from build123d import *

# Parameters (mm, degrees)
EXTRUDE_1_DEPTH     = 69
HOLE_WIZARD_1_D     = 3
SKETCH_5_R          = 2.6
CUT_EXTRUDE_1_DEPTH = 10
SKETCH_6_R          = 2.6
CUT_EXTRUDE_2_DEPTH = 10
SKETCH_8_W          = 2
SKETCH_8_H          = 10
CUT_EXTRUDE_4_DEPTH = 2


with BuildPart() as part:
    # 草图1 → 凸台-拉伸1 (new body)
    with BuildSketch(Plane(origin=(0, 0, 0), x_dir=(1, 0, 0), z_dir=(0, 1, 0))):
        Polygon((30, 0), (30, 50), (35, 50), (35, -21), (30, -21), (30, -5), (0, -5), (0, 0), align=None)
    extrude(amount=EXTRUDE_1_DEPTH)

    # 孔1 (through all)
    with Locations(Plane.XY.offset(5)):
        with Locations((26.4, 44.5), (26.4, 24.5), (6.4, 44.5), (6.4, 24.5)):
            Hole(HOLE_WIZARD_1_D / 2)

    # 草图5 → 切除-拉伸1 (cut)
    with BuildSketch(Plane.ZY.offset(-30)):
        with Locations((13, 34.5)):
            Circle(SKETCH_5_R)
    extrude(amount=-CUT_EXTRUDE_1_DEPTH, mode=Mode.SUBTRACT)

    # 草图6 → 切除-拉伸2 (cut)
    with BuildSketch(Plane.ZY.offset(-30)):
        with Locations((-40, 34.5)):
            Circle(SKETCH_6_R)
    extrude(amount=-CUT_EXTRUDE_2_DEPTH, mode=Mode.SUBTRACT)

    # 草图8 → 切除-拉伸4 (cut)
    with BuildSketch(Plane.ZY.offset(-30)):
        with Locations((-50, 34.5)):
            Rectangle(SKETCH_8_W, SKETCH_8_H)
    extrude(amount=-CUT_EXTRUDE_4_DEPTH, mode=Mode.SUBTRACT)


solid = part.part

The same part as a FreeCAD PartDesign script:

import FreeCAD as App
import Part
import Sketcher


def add_polygon(sketch, points):
    """Adds a closed chain of lines whose ends are joined by coincident constraints."""
    first, n = sketch.GeometryCount, len(points)
    for a, b in zip(points, points[1:] + points[:1]):
        sketch.addGeometry(Part.LineSegment(App.Vector(*a, 0), App.Vector(*b, 0)), False)
    for i in range(n):
        sketch.addConstraint(Sketcher.Constraint("Coincident", first + i, 2, first + (i + 1) % n, 1))

doc = App.newDocument("Part")
body = doc.addObject("PartDesign::Body", "Body")

sketch1 = body.newObject("Sketcher::SketchObject", "Sketch")
sketch1.AttachmentSupport = (doc.getObject("XZ_Plane"), [""])
sketch1.MapMode = "FlatFace"
add_polygon(sketch1, [(30, -50), (30, 0), (0, 0), (0, 5), (30, 5), (30, 21), (35, 21), (35, -50)])
sketch1.addConstraint(Sketcher.Constraint("Vertical", 0))
sketch1.addConstraint(Sketcher.Constraint("Horizontal", 1))
sketch1.addConstraint(Sketcher.Constraint("Vertical", 2))
sketch1.addConstraint(Sketcher.Constraint("Horizontal", 3))
sketch1.addConstraint(Sketcher.Constraint("Vertical", 4))
sketch1.addConstraint(Sketcher.Constraint("Horizontal", 5))
sketch1.addConstraint(Sketcher.Constraint("Vertical", 6))
sketch1.addConstraint(Sketcher.Constraint("Horizontal", 7))
sketch1.addConstraint(Sketcher.Constraint("Coincident", 1, 2, -1, 1))
sketch1.addConstraint(Sketcher.Constraint("Vertical", 0, 2, 3, 2))
sketch1.addConstraint(Sketcher.Constraint("Equal", 7, 2))
sketch1.addConstraint(Sketcher.Constraint("DistanceX", 1, 2, 1, 1, 30.0))
sketch1.addConstraint(Sketcher.Constraint("DistanceX", 5, 1, 5, 2, 5.0))
sketch1.addConstraint(Sketcher.Constraint("DistanceY", 0, 1, 0, 2, 50.0))
sketch1.addConstraint(Sketcher.Constraint("DistanceY", 4, 1, 4, 2, 16.0))
pad1 = body.newObject("PartDesign::Pad", "Pad")
pad1.Profile = sketch1
pad1.Length = 69
pad1.Reversed = True

sketch2 = body.newObject("Sketcher::SketchObject", "Sketch001")
sketch2.AttachmentSupport = (doc.getObject("XY_Plane"), [""])
sketch2.MapMode = "FlatFace"
sketch2.AttachmentOffset = App.Placement(App.Vector(0, 0, 5), App.Rotation())
sketch2.addGeometry(Part.Circle(App.Vector(26.4, 44.5, 0), App.Vector(0, 0, 1), 1.5), False)
sketch2.addGeometry(Part.Circle(App.Vector(26.4, 24.5, 0), App.Vector(0, 0, 1), 1.5), False)
sketch2.addGeometry(Part.Circle(App.Vector(6.4, 44.5, 0), App.Vector(0, 0, 1), 1.5), False)
sketch2.addGeometry(Part.Circle(App.Vector(6.4, 24.5, 0), App.Vector(0, 0, 1), 1.5), False)
sketch2.addConstraint(Sketcher.Constraint("Equal", 0, 1))
sketch2.addConstraint(Sketcher.Constraint("Equal", 1, 2))
sketch2.addConstraint(Sketcher.Constraint("Equal", 2, 3))
sketch2.addConstraint(Sketcher.Constraint("Horizontal", 0, 3, 2, 3))
sketch2.addConstraint(Sketcher.Constraint("Horizontal", 1, 3, 3, 3))
sketch2.addConstraint(Sketcher.Constraint("Vertical", 0, 3, 1, 3))
sketch2.addConstraint(Sketcher.Constraint("Vertical", 2, 3, 3, 3))
sketch2.addConstraint(Sketcher.Constraint("Diameter", 0, 3.0))
sketch2.addConstraint(Sketcher.Constraint("DistanceY", 1, 3, 0, 3, 20.0))
sketch2.addConstraint(Sketcher.Constraint("DistanceX", 2, 3, 0, 3, 20.0))
sketch2.addConstraint(Sketcher.Constraint("DistanceX", -1, 1, 0, 3, 26.4))
sketch2.addConstraint(Sketcher.Constraint("DistanceY", -1, 1, 0, 3, 44.5))
doc.recompute()
hole = body.newObject("PartDesign::Hole", "Hole")
hole.Profile = sketch2
hole.ThreadType = "None"
hole.Diameter = 3
hole.DepthType = "ThroughAll"

sketch3 = body.newObject("Sketcher::SketchObject", "Sketch002")
sketch3.AttachmentSupport = (doc.getObject("YZ_Plane"), [""])
sketch3.MapMode = "FlatFace"
sketch3.AttachmentOffset = App.Placement(App.Vector(0, 0, 30), App.Rotation())
sketch3.addGeometry(Part.Circle(App.Vector(34.5, 13, 0), App.Vector(0, 0, 1), 2.6), False)
sketch3.addConstraint(Sketcher.Constraint("Diameter", 0, 5.2))
sketch3.addConstraint(Sketcher.Constraint("DistanceY", -1, 1, 0, 3, 13.0))
sketch3.addConstraint(Sketcher.Constraint("DistanceX", -1, 1, 0, 3, 34.5))
pocket1 = body.newObject("PartDesign::Pocket", "Pocket")
pocket1.Profile = sketch3
pocket1.Length = 10
pocket1.Reversed = True

sketch4 = body.newObject("Sketcher::SketchObject", "Sketch003")
sketch4.AttachmentSupport = (doc.getObject("YZ_Plane"), [""])
sketch4.MapMode = "FlatFace"
sketch4.AttachmentOffset = App.Placement(App.Vector(0, 0, 30), App.Rotation())
sketch4.addGeometry(Part.Circle(App.Vector(34.5, -40, 0), App.Vector(0, 0, 1), 2.6), False)
sketch4.addConstraint(Sketcher.Constraint("Diameter", 0, 5.2))
sketch4.addConstraint(Sketcher.Constraint("DistanceY", 0, 3, -1, 1, 40.0))
sketch4.addConstraint(Sketcher.Constraint("DistanceX", -1, 1, 0, 3, 34.5))
pocket2 = body.newObject("PartDesign::Pocket", "Pocket001")
pocket2.Profile = sketch4
pocket2.Length = 10
pocket2.Reversed = True

sketch5 = body.newObject("Sketcher::SketchObject", "Sketch004")
sketch5.AttachmentSupport = (doc.getObject("YZ_Plane"), [""])
sketch5.MapMode = "FlatFace"
sketch5.AttachmentOffset = App.Placement(App.Vector(0, 0, 30), App.Rotation())
add_polygon(sketch5, [(39.5, -51), (29.5, -51), (29.5, -49), (39.5, -49)])
sketch5.addConstraint(Sketcher.Constraint("Horizontal", 0))
sketch5.addConstraint(Sketcher.Constraint("Vertical", 1))
sketch5.addConstraint(Sketcher.Constraint("Horizontal", 2))
sketch5.addConstraint(Sketcher.Constraint("Vertical", 3))
sketch5.addConstraint(Sketcher.Constraint("DistanceX", 0, 2, 0, 1, 10.0))
sketch5.addConstraint(Sketcher.Constraint("DistanceY", 1, 1, 1, 2, 2.0))
sketch5.addConstraint(Sketcher.Constraint("DistanceY", 0, 2, -1, 1, 51.0))
sketch5.addConstraint(Sketcher.Constraint("DistanceX", -1, 1, 0, 2, 29.5))
pocket3 = body.newObject("PartDesign::Pocket", "Pocket002")
pocket3.Profile = sketch5
pocket3.Length = 2
pocket3.Reversed = True

doc.recompute()
